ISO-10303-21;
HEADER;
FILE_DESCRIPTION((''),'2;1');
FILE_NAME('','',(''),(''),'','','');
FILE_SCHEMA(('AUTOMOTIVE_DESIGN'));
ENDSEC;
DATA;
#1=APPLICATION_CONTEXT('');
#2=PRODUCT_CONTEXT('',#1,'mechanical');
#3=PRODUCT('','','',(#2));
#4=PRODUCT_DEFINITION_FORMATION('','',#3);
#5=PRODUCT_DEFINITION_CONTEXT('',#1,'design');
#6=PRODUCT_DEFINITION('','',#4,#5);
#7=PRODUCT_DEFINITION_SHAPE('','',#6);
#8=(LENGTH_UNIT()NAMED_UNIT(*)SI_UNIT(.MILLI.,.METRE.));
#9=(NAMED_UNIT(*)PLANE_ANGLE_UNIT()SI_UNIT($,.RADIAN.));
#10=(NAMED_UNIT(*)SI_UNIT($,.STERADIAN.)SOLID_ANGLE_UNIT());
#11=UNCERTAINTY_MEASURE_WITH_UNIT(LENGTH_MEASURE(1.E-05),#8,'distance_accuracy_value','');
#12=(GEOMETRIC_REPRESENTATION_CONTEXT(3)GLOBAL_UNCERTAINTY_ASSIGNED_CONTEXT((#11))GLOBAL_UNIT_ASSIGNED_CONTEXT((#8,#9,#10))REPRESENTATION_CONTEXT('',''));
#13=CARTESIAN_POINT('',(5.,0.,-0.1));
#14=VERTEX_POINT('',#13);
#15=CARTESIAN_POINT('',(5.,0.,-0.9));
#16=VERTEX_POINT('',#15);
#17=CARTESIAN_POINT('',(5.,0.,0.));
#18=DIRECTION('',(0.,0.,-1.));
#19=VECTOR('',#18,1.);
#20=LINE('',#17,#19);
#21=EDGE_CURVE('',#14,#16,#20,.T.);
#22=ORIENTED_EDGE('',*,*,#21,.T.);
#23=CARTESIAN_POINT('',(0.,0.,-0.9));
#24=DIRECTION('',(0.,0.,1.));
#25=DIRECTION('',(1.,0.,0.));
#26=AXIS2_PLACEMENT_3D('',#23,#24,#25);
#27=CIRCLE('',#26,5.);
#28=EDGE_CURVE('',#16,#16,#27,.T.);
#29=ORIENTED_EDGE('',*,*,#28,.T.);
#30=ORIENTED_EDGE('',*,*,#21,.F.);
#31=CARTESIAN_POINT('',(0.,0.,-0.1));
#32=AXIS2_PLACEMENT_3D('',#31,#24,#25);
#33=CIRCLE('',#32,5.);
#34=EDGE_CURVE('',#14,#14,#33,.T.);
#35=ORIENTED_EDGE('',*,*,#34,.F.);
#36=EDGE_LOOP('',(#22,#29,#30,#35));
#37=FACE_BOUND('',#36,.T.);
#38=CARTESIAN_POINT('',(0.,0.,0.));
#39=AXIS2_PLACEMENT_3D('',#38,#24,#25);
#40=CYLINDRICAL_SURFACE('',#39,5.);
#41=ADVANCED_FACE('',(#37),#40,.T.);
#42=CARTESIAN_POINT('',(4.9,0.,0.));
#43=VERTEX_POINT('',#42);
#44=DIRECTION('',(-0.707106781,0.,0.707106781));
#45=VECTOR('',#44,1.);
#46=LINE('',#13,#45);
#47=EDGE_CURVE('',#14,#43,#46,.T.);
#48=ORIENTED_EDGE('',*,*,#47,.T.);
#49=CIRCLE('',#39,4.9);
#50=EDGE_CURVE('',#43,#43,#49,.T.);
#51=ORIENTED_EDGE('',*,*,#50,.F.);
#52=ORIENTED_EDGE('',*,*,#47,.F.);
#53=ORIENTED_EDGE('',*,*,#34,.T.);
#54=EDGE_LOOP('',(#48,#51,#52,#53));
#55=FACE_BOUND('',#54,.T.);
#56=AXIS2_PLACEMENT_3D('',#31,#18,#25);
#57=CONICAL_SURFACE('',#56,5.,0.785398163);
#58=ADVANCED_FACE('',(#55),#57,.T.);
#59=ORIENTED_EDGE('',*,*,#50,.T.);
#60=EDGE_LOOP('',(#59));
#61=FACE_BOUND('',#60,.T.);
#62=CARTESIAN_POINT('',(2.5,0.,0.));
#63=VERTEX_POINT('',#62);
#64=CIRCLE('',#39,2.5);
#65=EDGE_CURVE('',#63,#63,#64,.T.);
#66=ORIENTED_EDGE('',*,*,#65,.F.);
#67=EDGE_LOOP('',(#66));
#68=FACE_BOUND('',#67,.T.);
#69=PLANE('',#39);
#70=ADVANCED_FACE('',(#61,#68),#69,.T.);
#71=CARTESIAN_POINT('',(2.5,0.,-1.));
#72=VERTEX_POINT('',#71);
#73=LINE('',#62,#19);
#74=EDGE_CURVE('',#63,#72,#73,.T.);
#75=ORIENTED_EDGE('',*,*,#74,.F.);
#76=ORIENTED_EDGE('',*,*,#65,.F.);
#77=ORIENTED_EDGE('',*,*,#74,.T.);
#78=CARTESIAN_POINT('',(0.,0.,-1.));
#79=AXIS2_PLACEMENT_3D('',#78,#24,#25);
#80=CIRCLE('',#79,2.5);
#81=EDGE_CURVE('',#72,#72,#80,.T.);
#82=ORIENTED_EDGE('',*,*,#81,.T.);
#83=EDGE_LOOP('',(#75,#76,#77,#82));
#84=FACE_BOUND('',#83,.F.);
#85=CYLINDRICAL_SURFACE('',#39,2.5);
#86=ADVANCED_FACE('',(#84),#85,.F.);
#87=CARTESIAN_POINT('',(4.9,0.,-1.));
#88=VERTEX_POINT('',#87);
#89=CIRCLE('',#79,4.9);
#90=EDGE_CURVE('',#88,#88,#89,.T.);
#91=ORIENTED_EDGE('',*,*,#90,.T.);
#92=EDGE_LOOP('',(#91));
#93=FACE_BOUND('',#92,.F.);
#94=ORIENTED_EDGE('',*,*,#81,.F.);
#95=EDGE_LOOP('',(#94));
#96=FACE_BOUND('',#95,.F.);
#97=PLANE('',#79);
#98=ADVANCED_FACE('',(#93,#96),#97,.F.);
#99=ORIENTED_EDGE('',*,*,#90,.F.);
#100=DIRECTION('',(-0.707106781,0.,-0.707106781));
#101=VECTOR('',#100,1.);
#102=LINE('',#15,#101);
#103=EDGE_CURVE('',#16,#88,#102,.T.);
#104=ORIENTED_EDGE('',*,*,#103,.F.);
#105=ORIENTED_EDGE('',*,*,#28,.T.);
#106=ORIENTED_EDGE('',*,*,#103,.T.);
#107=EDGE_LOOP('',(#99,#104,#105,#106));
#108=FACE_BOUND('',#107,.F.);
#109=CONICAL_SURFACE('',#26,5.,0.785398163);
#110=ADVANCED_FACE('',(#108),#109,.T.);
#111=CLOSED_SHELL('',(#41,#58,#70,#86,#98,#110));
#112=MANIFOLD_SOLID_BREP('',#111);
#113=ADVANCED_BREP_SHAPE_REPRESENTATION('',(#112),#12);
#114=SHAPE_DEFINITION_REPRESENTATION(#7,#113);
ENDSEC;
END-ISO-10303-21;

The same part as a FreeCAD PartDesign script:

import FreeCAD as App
import Part
import Sketcher

V = App.Vector
Q = App.Units.Quantity


def edges_at(feature, points):
    """Names of the edges that pass closest to the given points."""
    edges = feature.Shape.Edges
    near = lambda p: min(range(len(edges)), key=lambda i: edges[i].distToShape(Part.Vertex(*p))[0])
    return sorted({f"Edge{near(p) + 1}" for p in points})

doc = App.newDocument("Part")
body = doc.addObject("PartDesign::Body", "Body")

sketch1 = doc.addObject("Sketcher::SketchObject", "Sketch")
body.addObject(sketch1)
sketch1.AttachmentSupport = (doc.XY_Plane, [""])
sketch1.MapMode = "FlatFace"
sketch1.addGeometry([
    Part.Circle(V(0, 0, 0), V(0, 0, 1), 5),
    Part.Circle(V(0, 0, 0), V(0, 0, 1), 2.5),
], False)
sketch1.addConstraint([
    Sketcher.Constraint("Coincident", 0, 3, -1, 1),
    Sketcher.Constraint("Coincident", 1, 3, -1, 1),
    Sketcher.Constraint("Diameter", 0, Q("10 mm")),
    Sketcher.Constraint("Diameter", 1, Q("5 mm")),
])
pad1 = doc.addObject("PartDesign::Pad", "Pad")
body.addObject(pad1)
pad1.Profile = sketch1
pad1.Length = 1
pad1.Reversed = True
doc.recompute()

chamfer = doc.addObject("PartDesign::Chamfer", "Chamfer")
body.addObject(chamfer)
chamfer.Base = (pad1, edges_at(pad1, [(-5, 0, 0), (-5, 0, -1)]))
chamfer.Size = 0.1

doc.recompute()
